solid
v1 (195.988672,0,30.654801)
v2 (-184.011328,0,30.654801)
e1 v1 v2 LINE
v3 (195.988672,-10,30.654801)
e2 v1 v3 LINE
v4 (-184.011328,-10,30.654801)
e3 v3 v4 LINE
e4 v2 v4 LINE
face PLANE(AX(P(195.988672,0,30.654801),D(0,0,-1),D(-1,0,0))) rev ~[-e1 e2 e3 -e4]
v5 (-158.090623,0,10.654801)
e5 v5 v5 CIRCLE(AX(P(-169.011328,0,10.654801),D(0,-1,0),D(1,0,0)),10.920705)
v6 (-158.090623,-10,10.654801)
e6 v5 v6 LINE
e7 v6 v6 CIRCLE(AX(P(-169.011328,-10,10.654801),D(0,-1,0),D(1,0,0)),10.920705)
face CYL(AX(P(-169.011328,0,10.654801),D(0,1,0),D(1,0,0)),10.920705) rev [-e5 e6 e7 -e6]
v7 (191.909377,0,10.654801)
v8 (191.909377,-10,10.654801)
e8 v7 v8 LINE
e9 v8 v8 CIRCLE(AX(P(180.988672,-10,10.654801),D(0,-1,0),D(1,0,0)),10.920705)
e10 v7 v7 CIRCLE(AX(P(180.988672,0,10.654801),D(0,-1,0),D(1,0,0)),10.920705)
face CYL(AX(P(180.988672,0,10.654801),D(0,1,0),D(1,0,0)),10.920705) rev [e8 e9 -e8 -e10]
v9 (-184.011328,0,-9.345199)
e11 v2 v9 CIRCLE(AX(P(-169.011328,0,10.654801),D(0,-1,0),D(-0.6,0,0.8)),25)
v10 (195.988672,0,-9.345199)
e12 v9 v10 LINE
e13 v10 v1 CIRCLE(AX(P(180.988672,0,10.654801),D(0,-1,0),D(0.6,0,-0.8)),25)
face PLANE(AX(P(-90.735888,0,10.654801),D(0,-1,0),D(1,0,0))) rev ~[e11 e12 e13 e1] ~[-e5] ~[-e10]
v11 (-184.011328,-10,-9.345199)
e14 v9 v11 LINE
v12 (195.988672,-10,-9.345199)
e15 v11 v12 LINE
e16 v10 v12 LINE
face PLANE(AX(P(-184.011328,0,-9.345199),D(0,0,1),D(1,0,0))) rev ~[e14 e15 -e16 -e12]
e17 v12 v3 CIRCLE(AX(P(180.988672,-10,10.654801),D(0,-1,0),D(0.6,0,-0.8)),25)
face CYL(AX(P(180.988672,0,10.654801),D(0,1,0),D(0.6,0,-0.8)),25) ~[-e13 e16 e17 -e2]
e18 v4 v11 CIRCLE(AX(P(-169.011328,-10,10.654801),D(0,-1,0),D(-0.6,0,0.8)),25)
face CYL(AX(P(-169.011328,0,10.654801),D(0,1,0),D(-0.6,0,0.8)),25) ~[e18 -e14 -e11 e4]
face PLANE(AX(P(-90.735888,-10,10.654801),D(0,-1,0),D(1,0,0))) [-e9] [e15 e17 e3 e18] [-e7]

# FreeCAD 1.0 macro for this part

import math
import FreeCAD as App
import Part
import Sketcher

doc = App.newDocument("Part")
body = doc.addObject("PartDesign::Body", "Body")

# Sketch on XZ plane
sketch1 = body.newObject("Sketcher::SketchObject", "Sketch")
sketch1.AttachmentSupport = (doc.getObject("XZ_Plane"), [""])
sketch1.MapMode = "FlatFace"
sketch1.addGeometry([
    Part.ArcOfCircle(Part.Circle(App.Vector(-169, 11, 0), App.Vector(0, 0, 1), 25), math.radians(127), math.radians(233)),  # 0
    Part.LineSegment(App.Vector(-184, -9, 0), App.Vector(196, -9, 0)),  # 1
    Part.ArcOfCircle(Part.Circle(App.Vector(181, 11, 0), App.Vector(0, 0, 1), 25), math.radians(-53), math.radians(53)),  # 2
    Part.LineSegment(App.Vector(196, 31, 0), App.Vector(-184, 31, 0)),  # 3
    Part.Circle(App.Vector(-169, 11, 0), App.Vector(0, 0, 1), 11),  # 4
    Part.Circle(App.Vector(181, 11, 0), App.Vector(0, 0, 1), 11),  # 5
], False)
sketch1.addConstraint([
    Sketcher.Constraint("Coincident", 0, 2, 1, 1),
    Sketcher.Constraint("Coincident", 1, 2, 2, 1),
    Sketcher.Constraint("Coincident", 2, 2, 3, 1),
    Sketcher.Constraint("Coincident", 3, 2, 0, 1),
    Sketcher.Constraint("Horizontal", 1),
    Sketcher.Constraint("Horizontal", 3),
    Sketcher.Constraint("Coincident", 4, 3, 0, 3),
    Sketcher.Constraint("Coincident", 5, 3, 2, 3),
    Sketcher.Constraint("Equal", 0, 2),
    Sketcher.Constraint("Equal", 4, 5),
    Sketcher.Constraint("Horizontal", 0, 3, 2, 3),
    Sketcher.Constraint("Vertical", 1, 2, 2, 2),
    Sketcher.Constraint("Radius", 0, 25.0),
    Sketcher.Constraint("DistanceX", 1, 1, 1, 2, 380.0),
    Sketcher.Constraint("DistanceX", 0, 3, 2, 3, 350.0),
    Sketcher.Constraint("Diameter", 4, 21.84141),
    Sketcher.Constraint("DistanceY", -1, 1, 0, 3, 10.654801),
    Sketcher.Constraint("DistanceX", 0, 3, -1, 1, 169.011328),
])
pad1 = body.newObject("PartDesign::Pad", "Pad")
pad1.Profile = sketch1
pad1.Length = 10

doc.recompute()
